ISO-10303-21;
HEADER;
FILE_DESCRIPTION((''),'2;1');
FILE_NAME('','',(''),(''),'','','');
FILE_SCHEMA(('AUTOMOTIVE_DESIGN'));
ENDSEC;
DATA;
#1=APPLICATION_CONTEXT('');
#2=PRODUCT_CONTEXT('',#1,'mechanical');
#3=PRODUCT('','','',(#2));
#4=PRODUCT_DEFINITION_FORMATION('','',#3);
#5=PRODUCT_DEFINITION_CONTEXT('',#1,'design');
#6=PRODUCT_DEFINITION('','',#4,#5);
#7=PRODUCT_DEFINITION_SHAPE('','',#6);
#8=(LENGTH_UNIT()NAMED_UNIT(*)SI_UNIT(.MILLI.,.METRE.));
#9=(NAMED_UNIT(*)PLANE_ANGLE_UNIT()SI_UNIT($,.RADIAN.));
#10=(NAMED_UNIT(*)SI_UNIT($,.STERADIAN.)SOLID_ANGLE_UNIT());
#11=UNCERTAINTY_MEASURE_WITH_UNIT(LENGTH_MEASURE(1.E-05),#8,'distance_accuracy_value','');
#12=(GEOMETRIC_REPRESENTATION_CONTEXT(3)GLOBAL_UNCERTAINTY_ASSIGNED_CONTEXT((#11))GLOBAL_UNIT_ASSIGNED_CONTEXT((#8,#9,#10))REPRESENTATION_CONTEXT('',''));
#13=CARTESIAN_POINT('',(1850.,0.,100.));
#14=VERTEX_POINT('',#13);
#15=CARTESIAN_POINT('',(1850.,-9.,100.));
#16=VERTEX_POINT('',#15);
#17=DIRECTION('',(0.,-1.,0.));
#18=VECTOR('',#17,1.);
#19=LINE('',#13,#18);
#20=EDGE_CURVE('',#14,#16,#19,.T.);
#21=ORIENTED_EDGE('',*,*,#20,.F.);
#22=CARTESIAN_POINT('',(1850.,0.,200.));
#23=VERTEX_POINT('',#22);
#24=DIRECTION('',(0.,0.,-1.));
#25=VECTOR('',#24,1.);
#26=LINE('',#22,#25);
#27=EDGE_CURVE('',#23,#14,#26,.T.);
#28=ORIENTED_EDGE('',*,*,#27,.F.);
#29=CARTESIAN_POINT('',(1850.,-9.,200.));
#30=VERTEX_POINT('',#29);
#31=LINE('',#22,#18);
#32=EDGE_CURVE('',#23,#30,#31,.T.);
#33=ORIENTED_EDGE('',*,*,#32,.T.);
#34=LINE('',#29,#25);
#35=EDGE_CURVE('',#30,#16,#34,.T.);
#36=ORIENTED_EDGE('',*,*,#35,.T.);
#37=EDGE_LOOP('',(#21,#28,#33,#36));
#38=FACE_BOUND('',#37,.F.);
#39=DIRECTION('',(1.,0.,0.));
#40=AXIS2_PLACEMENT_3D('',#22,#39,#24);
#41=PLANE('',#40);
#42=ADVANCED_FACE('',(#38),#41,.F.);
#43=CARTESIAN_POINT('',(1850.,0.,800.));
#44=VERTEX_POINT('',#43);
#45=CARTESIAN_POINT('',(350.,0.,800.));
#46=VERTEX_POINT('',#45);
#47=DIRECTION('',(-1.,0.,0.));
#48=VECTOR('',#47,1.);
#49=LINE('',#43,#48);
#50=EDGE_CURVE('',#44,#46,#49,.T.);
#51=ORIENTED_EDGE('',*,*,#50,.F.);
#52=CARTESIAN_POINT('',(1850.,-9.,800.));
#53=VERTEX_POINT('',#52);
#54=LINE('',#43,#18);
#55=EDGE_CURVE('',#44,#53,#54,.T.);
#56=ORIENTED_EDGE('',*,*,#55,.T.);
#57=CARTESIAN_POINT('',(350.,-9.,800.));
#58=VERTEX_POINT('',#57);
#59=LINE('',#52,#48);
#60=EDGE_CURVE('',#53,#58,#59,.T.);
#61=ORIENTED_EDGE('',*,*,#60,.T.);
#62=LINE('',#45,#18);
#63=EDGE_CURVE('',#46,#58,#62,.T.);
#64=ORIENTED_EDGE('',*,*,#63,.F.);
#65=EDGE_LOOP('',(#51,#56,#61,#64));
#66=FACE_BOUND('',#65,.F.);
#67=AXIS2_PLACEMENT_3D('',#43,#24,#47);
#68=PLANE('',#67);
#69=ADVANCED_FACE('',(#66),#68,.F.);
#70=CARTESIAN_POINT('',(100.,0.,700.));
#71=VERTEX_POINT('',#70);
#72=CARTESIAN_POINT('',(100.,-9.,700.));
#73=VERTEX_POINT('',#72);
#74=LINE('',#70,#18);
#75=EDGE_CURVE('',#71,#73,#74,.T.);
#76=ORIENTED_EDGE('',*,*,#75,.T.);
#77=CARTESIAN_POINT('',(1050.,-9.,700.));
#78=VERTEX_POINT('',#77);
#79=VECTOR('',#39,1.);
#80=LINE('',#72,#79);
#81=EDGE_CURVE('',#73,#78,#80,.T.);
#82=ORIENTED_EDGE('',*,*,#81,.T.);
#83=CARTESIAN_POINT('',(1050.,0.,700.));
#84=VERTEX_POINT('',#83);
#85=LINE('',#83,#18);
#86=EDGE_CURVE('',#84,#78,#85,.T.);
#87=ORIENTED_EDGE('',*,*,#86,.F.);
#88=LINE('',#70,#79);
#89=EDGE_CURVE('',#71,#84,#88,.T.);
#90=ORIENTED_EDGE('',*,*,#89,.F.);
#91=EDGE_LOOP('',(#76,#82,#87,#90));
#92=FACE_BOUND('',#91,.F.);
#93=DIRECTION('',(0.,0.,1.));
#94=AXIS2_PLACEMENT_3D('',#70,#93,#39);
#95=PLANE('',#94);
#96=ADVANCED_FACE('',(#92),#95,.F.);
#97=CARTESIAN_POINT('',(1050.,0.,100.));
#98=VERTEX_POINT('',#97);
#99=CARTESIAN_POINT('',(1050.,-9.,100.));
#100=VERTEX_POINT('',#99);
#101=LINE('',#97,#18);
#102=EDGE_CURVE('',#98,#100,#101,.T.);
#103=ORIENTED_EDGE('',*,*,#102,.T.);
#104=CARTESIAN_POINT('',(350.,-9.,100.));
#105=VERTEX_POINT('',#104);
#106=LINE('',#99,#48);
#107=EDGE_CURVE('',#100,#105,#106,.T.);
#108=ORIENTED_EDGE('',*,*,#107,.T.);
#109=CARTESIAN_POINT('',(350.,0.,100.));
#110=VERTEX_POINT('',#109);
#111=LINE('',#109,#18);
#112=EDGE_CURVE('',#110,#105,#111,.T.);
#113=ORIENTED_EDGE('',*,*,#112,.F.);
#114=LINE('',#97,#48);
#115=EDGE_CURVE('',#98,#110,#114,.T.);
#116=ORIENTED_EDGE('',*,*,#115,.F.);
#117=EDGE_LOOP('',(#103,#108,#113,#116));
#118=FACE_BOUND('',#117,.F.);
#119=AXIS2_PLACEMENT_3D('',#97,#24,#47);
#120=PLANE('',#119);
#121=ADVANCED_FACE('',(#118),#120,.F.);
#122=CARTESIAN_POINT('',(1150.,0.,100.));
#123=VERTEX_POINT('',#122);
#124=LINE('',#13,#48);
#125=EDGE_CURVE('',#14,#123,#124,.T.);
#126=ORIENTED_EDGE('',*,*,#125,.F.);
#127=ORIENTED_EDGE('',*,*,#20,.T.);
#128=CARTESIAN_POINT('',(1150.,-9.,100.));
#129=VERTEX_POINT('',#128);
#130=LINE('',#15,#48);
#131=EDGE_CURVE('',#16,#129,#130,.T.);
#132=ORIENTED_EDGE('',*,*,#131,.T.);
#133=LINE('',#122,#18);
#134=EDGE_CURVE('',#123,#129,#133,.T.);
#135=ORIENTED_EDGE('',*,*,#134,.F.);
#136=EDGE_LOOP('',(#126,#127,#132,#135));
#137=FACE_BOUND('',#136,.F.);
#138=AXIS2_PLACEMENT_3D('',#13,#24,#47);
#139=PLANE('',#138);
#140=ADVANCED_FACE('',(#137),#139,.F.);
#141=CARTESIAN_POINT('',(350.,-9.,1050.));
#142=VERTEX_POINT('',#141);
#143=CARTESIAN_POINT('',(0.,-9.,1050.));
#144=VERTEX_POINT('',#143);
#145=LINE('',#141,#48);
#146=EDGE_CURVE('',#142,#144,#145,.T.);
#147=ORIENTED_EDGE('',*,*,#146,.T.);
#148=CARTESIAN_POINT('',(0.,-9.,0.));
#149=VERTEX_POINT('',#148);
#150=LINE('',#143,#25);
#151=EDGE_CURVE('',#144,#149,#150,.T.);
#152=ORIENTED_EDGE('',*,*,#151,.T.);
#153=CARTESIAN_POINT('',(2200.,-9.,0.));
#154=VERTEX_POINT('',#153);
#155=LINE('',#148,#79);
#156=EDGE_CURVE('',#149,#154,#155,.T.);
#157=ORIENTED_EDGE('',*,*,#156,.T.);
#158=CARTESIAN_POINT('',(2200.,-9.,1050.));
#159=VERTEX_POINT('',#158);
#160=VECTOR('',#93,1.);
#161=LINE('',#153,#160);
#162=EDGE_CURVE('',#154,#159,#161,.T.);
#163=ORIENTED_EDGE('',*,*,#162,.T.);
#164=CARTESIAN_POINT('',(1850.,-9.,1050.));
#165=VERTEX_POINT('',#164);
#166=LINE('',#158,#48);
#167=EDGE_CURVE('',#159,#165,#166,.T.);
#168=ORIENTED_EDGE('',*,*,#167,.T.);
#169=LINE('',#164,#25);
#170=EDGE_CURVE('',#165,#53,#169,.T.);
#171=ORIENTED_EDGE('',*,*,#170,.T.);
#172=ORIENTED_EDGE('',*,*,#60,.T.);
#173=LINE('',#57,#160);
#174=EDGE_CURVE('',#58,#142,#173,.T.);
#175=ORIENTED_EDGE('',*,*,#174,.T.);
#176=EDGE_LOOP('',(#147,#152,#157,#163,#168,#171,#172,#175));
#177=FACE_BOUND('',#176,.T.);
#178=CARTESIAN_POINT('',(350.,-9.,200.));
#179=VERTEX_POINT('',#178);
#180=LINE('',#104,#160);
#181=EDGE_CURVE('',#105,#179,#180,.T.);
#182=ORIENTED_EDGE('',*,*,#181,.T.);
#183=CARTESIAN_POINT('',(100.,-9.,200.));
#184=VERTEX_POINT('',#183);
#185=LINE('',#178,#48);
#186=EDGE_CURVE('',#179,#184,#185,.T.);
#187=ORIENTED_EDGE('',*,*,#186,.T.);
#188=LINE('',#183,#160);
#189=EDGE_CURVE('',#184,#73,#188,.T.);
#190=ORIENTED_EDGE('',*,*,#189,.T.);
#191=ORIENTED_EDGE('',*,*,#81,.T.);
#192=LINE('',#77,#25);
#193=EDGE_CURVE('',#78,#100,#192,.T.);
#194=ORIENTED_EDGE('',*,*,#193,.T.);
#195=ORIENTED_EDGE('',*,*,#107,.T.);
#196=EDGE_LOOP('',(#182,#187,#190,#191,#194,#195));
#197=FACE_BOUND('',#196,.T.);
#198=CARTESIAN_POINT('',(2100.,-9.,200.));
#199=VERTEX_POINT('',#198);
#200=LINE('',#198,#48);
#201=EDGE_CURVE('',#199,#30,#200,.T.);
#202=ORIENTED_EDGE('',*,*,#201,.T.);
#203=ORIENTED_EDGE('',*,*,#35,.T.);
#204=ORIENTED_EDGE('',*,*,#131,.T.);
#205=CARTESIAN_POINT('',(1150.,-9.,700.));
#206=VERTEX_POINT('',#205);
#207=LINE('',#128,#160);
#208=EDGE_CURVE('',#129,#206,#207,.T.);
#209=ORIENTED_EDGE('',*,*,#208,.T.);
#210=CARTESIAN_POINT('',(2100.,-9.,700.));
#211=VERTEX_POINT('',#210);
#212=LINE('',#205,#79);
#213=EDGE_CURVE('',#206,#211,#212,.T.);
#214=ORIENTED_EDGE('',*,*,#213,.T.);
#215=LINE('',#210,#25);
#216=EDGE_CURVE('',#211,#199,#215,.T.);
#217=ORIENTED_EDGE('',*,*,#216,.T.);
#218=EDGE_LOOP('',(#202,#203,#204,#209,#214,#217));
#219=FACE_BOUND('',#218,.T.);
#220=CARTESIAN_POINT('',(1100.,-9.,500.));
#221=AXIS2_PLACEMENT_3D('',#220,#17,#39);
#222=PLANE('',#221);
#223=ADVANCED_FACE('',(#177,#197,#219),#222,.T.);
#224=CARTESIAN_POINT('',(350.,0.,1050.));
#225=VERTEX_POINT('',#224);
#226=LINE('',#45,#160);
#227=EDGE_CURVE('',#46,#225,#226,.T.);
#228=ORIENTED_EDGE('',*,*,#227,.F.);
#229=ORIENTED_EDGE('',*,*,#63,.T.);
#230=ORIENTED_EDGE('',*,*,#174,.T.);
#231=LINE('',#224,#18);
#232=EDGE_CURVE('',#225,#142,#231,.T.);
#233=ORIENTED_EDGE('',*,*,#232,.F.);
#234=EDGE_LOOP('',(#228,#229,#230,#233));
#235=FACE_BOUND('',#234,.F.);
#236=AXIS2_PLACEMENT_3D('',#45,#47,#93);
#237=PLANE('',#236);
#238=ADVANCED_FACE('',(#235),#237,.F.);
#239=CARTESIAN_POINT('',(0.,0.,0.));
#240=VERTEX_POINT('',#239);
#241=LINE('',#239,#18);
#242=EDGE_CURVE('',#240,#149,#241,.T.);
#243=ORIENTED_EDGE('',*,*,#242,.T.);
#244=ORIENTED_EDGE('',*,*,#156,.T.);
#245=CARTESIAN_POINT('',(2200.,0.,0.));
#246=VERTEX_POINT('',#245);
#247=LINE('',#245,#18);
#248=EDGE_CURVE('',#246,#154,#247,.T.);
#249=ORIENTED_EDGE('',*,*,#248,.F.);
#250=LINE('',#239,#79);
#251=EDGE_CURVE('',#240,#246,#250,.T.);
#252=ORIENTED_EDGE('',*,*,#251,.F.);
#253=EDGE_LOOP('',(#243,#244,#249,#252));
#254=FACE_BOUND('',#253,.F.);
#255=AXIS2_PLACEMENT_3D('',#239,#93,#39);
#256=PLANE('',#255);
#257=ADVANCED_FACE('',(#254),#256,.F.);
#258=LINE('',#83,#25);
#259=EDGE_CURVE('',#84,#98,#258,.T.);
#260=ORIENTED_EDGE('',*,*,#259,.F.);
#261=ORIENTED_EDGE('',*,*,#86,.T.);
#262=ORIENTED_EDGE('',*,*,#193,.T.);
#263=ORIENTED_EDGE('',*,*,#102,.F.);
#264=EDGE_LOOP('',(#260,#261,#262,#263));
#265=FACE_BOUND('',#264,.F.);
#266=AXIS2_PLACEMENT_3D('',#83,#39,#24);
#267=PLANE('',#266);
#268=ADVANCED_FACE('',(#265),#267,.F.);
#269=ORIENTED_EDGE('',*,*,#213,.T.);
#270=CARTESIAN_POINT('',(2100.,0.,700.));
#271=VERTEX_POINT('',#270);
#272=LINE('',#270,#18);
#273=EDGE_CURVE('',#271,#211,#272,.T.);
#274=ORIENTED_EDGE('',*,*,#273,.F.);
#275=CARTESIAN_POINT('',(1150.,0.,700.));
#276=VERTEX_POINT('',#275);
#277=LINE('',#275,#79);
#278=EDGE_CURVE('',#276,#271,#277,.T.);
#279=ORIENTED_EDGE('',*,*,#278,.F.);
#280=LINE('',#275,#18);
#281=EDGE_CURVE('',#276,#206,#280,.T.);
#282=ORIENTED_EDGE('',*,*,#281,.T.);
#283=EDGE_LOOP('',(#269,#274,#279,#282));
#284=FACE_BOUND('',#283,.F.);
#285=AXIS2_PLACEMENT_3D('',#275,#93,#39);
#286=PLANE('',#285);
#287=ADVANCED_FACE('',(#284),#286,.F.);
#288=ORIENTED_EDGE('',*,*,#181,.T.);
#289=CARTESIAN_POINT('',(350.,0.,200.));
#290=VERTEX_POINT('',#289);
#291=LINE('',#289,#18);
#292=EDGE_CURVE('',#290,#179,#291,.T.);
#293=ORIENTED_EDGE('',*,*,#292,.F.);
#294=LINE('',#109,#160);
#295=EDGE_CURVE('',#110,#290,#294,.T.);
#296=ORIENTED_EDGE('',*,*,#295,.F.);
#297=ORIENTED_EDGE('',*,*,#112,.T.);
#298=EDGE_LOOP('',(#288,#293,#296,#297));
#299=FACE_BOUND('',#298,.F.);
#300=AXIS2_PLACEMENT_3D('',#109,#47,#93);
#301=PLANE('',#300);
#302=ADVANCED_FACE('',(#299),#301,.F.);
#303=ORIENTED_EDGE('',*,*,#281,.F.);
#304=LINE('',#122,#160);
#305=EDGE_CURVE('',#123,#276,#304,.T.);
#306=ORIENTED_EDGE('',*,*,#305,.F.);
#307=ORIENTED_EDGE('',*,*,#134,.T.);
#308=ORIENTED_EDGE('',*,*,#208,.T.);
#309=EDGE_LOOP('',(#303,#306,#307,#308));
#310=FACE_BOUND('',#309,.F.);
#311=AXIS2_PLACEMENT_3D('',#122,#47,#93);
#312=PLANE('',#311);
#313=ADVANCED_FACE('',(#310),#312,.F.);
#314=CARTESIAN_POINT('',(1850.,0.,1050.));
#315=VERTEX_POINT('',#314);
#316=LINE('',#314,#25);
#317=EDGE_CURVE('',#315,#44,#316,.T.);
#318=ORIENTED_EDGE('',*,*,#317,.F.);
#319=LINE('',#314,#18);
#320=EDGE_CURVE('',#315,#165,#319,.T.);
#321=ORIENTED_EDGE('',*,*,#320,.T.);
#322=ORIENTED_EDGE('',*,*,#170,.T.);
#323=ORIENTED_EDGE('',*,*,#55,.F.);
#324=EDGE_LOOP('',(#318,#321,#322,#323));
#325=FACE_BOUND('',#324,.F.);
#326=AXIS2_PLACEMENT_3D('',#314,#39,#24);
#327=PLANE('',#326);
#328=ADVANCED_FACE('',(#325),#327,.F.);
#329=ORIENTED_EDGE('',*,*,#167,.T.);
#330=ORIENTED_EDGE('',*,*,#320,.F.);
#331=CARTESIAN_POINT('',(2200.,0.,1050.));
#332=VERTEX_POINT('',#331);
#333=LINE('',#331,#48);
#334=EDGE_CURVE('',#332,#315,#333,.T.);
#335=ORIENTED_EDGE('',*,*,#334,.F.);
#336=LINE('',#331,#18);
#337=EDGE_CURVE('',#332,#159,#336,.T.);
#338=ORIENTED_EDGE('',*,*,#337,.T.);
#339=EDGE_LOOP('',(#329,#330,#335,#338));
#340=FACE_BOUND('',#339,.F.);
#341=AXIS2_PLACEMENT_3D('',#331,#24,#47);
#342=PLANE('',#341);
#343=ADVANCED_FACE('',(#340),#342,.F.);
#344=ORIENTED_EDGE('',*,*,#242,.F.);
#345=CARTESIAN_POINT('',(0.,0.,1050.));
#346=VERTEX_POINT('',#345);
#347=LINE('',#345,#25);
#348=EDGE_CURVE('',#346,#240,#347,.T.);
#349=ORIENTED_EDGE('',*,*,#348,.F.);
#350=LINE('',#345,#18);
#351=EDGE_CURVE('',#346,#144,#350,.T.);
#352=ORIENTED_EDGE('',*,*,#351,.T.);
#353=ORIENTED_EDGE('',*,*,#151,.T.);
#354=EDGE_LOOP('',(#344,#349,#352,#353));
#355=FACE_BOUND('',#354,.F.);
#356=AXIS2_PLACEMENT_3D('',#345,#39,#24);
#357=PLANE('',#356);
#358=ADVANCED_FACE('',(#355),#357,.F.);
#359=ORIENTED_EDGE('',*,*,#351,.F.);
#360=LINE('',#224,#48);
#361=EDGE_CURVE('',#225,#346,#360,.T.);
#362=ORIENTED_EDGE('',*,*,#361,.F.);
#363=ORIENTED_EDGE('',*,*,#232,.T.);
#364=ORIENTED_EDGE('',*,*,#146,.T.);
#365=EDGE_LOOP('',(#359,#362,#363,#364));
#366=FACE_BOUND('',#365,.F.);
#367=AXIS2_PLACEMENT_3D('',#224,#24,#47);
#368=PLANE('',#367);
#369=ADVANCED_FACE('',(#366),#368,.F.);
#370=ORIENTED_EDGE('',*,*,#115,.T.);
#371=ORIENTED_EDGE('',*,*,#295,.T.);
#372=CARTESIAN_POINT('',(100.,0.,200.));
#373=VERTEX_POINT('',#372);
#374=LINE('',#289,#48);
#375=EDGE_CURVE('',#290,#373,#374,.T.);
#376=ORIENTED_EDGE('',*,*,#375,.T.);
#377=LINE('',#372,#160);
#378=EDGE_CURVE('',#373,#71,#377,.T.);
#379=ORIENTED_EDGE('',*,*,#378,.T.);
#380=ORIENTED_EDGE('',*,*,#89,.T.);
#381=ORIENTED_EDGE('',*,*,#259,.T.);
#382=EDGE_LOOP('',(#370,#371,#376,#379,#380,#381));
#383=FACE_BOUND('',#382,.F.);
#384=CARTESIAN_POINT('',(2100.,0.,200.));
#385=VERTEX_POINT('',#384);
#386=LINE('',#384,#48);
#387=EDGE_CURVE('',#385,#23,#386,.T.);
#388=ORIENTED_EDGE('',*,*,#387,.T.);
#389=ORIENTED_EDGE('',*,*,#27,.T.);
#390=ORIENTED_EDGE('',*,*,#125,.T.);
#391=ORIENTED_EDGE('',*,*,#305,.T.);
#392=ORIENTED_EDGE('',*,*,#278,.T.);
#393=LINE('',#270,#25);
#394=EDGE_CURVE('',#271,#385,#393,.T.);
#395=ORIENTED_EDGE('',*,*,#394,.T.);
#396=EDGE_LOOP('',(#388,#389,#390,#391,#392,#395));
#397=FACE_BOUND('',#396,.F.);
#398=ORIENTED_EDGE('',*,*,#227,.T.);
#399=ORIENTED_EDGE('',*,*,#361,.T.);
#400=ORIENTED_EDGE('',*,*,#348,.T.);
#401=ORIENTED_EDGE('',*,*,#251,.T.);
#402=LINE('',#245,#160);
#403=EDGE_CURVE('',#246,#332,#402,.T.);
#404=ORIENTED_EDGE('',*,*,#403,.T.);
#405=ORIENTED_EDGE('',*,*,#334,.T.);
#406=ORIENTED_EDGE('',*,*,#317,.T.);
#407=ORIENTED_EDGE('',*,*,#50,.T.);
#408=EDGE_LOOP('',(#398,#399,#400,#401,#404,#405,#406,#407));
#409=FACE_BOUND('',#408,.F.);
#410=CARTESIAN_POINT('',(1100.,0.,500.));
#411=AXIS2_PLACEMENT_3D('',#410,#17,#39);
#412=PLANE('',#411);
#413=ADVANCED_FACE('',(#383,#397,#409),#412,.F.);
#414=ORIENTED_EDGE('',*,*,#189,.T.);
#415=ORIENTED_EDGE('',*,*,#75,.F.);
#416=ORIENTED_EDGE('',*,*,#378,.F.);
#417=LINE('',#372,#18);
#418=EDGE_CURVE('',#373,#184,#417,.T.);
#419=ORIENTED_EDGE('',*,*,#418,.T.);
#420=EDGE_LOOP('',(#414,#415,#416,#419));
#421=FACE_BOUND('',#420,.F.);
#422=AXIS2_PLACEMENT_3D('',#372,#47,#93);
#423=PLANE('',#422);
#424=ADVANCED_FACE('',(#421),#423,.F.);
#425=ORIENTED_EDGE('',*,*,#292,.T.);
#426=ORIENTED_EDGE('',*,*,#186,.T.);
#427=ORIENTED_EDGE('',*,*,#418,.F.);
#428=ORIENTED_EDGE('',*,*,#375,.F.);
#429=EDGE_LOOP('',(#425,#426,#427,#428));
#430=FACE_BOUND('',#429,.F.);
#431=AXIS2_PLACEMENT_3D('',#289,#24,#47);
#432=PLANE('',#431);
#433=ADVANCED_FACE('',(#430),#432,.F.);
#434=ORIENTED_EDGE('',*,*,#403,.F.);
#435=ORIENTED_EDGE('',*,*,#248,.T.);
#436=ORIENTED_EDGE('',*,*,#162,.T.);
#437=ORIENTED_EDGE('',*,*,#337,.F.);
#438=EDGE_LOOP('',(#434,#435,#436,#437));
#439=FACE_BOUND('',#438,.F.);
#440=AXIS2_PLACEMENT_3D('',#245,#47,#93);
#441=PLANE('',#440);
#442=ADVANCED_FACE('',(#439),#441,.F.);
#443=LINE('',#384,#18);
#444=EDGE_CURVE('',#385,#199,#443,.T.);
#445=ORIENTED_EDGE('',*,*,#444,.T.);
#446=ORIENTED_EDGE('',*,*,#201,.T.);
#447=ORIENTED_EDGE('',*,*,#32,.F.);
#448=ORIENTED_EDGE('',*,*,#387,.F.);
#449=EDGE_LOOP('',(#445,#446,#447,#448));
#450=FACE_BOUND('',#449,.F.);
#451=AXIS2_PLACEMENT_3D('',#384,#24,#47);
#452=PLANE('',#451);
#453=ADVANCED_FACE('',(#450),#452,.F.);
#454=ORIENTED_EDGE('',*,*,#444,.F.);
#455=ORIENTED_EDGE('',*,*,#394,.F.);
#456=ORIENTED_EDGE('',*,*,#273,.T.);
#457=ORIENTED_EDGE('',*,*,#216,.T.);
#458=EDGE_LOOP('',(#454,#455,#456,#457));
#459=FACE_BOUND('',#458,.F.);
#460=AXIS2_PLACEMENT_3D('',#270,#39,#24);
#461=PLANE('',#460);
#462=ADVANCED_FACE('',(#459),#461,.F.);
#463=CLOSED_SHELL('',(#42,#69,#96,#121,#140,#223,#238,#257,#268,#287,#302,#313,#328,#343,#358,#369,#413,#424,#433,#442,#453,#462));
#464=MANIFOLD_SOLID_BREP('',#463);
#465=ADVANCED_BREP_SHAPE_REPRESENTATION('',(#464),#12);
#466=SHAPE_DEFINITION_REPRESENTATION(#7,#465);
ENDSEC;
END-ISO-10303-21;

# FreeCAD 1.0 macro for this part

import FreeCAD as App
import Part
import Sketcher

V = App.Vector


def add_polygon(sketch, points):
    """Adds a closed chain of lines whose ends are joined by coincident constraints."""
    first, n = sketch.GeometryCount, len(points)
    for a, b in zip(points, points[1:] + points[:1]):
        sketch.addGeometry(Part.LineSegment(App.Vector(*a, 0), App.Vector(*b, 0)), False)
    for i in range(n):
        sketch.addConstraint(Sketcher.Constraint("Coincident", first + i, 2, first + (i + 1) % n, 1))

doc = App.newDocument("Part")
params = doc.addObject("Spreadsheet::Sheet", "Params")
for row, (alias, value) in enumerate([
    ("sketch1_width", "2200 mm"),
    ("sketch1_width2", "350 mm"),
    ("sketch1_width3", "250 mm"),
    ("sketch1_width4", "950 mm"),
    ("sketch1_height", "1050 mm"),
    ("pad1_length", "9 mm"),
], start=1):
    params.set(f"A{row}", alias)
    params.set(f"B{row}", "=" + value)
    params.setAlias(f"B{row}", alias)

body = doc.addObject("PartDesign::Body", "Body")

# Sketch on XZ plane
sketch1 = body.newObject("Sketcher::SketchObject", "Sketch")
sketch1.AttachmentSupport = (doc.getObject("XZ_Plane"), [""])
sketch1.MapMode = "FlatFace"
add_polygon(sketch1, [(0, 1050), (0, 0), (2200, 0), (2200, 1050), (1850, 1050), (1850, 800), (350, 800), (350, 1050)])  # lines 0-7
add_polygon(sketch1, [(350, 200), (100, 200), (100, 700), (1050, 700), (1050, 100), (350, 100)])  # lines 8-13
add_polygon(sketch1, [(1850, 200), (1850, 100), (1150, 100), (1150, 700), (2100, 700), (2100, 200)])  # lines 14-19
sketch1.addConstraint([
    Sketcher.Constraint("Vertical", 0),
    Sketcher.Constraint("Horizontal", 1),
    Sketcher.Constraint("Vertical", 2),
    Sketcher.Constraint("Horizontal", 3),
    Sketcher.Constraint("Vertical", 4),
    Sketcher.Constraint("Horizontal", 5),
    Sketcher.Constraint("Vertical", 6),
    Sketcher.Constraint("Horizontal", 7),
    Sketcher.Constraint("Horizontal", 8),
    Sketcher.Constraint("Vertical", 9),
    Sketcher.Constraint("Horizontal", 10),
    Sketcher.Constraint("Vertical", 11),
    Sketcher.Constraint("Horizontal", 12),
    Sketcher.Constraint("Vertical", 13),
    Sketcher.Constraint("Vertical", 14),
    Sketcher.Constraint("Horizontal", 15),
    Sketcher.Constraint("Vertical", 16),
    Sketcher.Constraint("Horizontal", 17),
    Sketcher.Constraint("Vertical", 18),
    Sketcher.Constraint("Horizontal", 19),
    Sketcher.Constraint("Coincident", 0, 2, -1, 1),
    Sketcher.Constraint("Horizontal", 3, 2, 6, 2),
    Sketcher.Constraint("Horizontal", 12, 2, 14, 2),
    Sketcher.Constraint("Horizontal", 10, 2, 16, 2),
    Sketcher.Constraint("Horizontal", 13, 2, 18, 2),
    Sketcher.Constraint("Vertical", 6, 2, 12, 2),
    Sketcher.Constraint("Vertical", 4, 2, 14, 2),
    Sketcher.Constraint("Equal", 3, 7),
    Sketcher.Constraint("Equal", 12, 15),
    Sketcher.Constraint("Equal", 10, 17),
    Sketcher.Constraint("Equal", 19, 4),
    Sketcher.Constraint("DistanceX", 1, 1, 1, 2, 2200.0),
    Sketcher.Constraint("DistanceX", 3, 2, 3, 1, 350.0),
    Sketcher.Constraint("DistanceX", 8, 2, 8, 1, 250.0),
    Sketcher.Constraint("DistanceX", 10, 1, 10, 2, 950.0),
    Sketcher.Constraint("DistanceY", 0, 2, 0, 1, 1050.0),
    Sketcher.Constraint("DistanceY", 9, 1, 9, 2, 500.0),
    Sketcher.Constraint("DistanceY", 11, 2, 11, 1, 600.0),
    Sketcher.Constraint("DistanceY", -1, 1, 8, 2, 200.0),
])
sketch1.setExpression("Constraints[51]", "Params.sketch1_width")
sketch1.setExpression("Constraints[52]", "Params.sketch1_width2")
sketch1.setExpression("Constraints[53]", "Params.sketch1_width3")
sketch1.setExpression("Constraints[54]", "Params.sketch1_width4")
sketch1.setExpression("Constraints[55]", "Params.sketch1_height")
pad1 = body.newObject("PartDesign::Pad", "Pad")
pad1.Profile = sketch1
pad1.setExpression("Length", "Params.pad1_length")

doc.recompute()
